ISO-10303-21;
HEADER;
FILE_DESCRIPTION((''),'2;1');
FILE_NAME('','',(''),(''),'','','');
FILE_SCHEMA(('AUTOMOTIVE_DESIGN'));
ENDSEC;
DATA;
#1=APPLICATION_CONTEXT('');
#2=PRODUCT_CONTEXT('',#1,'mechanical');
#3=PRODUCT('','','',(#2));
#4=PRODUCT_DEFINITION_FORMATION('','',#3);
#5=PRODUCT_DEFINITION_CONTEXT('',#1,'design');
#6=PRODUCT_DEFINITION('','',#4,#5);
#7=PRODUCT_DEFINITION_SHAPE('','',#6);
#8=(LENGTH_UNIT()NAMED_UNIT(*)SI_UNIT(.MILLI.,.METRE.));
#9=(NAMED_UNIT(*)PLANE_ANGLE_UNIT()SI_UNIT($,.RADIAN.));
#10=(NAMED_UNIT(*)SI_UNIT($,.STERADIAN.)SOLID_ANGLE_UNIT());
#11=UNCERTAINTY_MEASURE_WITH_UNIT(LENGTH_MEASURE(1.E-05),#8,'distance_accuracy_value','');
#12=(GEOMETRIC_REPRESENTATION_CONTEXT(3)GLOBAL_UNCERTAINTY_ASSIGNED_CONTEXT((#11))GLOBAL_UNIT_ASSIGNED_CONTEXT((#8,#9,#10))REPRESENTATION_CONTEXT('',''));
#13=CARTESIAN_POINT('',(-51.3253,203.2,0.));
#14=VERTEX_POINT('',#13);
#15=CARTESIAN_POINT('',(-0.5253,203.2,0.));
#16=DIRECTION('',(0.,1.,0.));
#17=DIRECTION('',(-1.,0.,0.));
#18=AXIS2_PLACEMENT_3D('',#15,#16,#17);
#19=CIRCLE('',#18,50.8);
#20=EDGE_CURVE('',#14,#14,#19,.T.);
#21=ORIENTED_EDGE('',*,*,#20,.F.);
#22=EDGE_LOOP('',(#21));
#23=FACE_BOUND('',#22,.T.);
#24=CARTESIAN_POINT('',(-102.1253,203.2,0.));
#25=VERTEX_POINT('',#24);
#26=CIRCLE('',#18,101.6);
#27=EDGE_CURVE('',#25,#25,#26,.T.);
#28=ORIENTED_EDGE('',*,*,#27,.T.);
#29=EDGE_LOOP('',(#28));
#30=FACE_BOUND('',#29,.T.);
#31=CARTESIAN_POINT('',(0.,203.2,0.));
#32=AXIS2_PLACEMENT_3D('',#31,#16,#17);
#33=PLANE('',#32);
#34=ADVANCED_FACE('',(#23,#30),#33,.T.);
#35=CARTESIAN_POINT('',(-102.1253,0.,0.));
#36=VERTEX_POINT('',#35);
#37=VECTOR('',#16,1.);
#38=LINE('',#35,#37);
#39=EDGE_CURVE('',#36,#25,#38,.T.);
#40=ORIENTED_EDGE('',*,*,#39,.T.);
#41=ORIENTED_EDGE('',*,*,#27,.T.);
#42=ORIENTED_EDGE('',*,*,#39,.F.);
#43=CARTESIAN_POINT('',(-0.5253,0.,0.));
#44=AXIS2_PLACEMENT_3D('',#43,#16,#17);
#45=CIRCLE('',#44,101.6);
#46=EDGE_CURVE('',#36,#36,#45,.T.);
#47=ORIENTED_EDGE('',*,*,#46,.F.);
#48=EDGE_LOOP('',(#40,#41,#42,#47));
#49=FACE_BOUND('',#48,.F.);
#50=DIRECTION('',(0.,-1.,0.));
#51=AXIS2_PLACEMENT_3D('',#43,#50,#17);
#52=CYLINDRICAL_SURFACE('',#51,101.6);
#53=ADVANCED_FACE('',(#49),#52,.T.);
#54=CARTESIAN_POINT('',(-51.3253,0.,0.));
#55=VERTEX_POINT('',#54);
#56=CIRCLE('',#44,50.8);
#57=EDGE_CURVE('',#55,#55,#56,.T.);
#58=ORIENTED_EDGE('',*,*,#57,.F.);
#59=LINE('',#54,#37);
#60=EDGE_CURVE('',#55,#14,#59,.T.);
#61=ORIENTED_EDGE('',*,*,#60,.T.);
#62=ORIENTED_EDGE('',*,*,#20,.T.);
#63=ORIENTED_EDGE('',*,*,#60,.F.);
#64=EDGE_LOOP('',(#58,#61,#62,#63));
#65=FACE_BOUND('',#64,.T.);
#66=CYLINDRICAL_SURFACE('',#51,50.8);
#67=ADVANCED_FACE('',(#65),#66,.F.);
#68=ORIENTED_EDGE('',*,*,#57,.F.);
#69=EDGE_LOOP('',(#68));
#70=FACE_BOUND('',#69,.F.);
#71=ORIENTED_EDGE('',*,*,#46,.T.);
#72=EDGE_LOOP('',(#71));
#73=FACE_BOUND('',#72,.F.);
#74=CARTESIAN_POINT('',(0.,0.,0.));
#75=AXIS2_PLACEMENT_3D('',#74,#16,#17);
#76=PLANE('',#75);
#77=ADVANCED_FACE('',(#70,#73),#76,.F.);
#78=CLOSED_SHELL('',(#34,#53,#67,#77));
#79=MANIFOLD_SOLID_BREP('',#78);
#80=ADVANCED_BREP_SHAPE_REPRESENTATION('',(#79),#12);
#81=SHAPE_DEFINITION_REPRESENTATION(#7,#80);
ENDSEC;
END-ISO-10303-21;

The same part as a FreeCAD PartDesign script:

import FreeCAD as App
import Part
import Sketcher
Q = App.Units.Quantity

doc = App.newDocument("Part")
body = doc.addObject("PartDesign::Body", "Body")

sketch1 = body.newObject("Sketcher::SketchObject", "Sketch")
sketch1.AttachmentSupport = (doc.getObject("XZ_Plane"), [""])
sketch1.MapMode = "FlatFace"
sketch1.addGeometry([
    Part.Circle(App.Vector(-1, 0, 0), App.Vector(0, 0, 1), 102),
    Part.Circle(App.Vector(-1, 0, 0), App.Vector(0, 0, 1), 51),
], False)
sketch1.addConstraint([
    Sketcher.Constraint("Coincident", 1, 3, 0, 3),
    Sketcher.Constraint("PointOnObject", 0, 3, -1),
    Sketcher.Constraint("Diameter", 0, Q("8 in")),
    Sketcher.Constraint("Diameter", 1, Q("4 in")),
    Sketcher.Constraint("DistanceX", 0, 3, -1, 1, Q("0.5253 mm")),
])
pad1 = body.newObject("PartDesign::Pad", "Pad")
pad1.Profile = sketch1
pad1.Length = Q("8 in")
pad1.Reversed = True

doc.recompute()
